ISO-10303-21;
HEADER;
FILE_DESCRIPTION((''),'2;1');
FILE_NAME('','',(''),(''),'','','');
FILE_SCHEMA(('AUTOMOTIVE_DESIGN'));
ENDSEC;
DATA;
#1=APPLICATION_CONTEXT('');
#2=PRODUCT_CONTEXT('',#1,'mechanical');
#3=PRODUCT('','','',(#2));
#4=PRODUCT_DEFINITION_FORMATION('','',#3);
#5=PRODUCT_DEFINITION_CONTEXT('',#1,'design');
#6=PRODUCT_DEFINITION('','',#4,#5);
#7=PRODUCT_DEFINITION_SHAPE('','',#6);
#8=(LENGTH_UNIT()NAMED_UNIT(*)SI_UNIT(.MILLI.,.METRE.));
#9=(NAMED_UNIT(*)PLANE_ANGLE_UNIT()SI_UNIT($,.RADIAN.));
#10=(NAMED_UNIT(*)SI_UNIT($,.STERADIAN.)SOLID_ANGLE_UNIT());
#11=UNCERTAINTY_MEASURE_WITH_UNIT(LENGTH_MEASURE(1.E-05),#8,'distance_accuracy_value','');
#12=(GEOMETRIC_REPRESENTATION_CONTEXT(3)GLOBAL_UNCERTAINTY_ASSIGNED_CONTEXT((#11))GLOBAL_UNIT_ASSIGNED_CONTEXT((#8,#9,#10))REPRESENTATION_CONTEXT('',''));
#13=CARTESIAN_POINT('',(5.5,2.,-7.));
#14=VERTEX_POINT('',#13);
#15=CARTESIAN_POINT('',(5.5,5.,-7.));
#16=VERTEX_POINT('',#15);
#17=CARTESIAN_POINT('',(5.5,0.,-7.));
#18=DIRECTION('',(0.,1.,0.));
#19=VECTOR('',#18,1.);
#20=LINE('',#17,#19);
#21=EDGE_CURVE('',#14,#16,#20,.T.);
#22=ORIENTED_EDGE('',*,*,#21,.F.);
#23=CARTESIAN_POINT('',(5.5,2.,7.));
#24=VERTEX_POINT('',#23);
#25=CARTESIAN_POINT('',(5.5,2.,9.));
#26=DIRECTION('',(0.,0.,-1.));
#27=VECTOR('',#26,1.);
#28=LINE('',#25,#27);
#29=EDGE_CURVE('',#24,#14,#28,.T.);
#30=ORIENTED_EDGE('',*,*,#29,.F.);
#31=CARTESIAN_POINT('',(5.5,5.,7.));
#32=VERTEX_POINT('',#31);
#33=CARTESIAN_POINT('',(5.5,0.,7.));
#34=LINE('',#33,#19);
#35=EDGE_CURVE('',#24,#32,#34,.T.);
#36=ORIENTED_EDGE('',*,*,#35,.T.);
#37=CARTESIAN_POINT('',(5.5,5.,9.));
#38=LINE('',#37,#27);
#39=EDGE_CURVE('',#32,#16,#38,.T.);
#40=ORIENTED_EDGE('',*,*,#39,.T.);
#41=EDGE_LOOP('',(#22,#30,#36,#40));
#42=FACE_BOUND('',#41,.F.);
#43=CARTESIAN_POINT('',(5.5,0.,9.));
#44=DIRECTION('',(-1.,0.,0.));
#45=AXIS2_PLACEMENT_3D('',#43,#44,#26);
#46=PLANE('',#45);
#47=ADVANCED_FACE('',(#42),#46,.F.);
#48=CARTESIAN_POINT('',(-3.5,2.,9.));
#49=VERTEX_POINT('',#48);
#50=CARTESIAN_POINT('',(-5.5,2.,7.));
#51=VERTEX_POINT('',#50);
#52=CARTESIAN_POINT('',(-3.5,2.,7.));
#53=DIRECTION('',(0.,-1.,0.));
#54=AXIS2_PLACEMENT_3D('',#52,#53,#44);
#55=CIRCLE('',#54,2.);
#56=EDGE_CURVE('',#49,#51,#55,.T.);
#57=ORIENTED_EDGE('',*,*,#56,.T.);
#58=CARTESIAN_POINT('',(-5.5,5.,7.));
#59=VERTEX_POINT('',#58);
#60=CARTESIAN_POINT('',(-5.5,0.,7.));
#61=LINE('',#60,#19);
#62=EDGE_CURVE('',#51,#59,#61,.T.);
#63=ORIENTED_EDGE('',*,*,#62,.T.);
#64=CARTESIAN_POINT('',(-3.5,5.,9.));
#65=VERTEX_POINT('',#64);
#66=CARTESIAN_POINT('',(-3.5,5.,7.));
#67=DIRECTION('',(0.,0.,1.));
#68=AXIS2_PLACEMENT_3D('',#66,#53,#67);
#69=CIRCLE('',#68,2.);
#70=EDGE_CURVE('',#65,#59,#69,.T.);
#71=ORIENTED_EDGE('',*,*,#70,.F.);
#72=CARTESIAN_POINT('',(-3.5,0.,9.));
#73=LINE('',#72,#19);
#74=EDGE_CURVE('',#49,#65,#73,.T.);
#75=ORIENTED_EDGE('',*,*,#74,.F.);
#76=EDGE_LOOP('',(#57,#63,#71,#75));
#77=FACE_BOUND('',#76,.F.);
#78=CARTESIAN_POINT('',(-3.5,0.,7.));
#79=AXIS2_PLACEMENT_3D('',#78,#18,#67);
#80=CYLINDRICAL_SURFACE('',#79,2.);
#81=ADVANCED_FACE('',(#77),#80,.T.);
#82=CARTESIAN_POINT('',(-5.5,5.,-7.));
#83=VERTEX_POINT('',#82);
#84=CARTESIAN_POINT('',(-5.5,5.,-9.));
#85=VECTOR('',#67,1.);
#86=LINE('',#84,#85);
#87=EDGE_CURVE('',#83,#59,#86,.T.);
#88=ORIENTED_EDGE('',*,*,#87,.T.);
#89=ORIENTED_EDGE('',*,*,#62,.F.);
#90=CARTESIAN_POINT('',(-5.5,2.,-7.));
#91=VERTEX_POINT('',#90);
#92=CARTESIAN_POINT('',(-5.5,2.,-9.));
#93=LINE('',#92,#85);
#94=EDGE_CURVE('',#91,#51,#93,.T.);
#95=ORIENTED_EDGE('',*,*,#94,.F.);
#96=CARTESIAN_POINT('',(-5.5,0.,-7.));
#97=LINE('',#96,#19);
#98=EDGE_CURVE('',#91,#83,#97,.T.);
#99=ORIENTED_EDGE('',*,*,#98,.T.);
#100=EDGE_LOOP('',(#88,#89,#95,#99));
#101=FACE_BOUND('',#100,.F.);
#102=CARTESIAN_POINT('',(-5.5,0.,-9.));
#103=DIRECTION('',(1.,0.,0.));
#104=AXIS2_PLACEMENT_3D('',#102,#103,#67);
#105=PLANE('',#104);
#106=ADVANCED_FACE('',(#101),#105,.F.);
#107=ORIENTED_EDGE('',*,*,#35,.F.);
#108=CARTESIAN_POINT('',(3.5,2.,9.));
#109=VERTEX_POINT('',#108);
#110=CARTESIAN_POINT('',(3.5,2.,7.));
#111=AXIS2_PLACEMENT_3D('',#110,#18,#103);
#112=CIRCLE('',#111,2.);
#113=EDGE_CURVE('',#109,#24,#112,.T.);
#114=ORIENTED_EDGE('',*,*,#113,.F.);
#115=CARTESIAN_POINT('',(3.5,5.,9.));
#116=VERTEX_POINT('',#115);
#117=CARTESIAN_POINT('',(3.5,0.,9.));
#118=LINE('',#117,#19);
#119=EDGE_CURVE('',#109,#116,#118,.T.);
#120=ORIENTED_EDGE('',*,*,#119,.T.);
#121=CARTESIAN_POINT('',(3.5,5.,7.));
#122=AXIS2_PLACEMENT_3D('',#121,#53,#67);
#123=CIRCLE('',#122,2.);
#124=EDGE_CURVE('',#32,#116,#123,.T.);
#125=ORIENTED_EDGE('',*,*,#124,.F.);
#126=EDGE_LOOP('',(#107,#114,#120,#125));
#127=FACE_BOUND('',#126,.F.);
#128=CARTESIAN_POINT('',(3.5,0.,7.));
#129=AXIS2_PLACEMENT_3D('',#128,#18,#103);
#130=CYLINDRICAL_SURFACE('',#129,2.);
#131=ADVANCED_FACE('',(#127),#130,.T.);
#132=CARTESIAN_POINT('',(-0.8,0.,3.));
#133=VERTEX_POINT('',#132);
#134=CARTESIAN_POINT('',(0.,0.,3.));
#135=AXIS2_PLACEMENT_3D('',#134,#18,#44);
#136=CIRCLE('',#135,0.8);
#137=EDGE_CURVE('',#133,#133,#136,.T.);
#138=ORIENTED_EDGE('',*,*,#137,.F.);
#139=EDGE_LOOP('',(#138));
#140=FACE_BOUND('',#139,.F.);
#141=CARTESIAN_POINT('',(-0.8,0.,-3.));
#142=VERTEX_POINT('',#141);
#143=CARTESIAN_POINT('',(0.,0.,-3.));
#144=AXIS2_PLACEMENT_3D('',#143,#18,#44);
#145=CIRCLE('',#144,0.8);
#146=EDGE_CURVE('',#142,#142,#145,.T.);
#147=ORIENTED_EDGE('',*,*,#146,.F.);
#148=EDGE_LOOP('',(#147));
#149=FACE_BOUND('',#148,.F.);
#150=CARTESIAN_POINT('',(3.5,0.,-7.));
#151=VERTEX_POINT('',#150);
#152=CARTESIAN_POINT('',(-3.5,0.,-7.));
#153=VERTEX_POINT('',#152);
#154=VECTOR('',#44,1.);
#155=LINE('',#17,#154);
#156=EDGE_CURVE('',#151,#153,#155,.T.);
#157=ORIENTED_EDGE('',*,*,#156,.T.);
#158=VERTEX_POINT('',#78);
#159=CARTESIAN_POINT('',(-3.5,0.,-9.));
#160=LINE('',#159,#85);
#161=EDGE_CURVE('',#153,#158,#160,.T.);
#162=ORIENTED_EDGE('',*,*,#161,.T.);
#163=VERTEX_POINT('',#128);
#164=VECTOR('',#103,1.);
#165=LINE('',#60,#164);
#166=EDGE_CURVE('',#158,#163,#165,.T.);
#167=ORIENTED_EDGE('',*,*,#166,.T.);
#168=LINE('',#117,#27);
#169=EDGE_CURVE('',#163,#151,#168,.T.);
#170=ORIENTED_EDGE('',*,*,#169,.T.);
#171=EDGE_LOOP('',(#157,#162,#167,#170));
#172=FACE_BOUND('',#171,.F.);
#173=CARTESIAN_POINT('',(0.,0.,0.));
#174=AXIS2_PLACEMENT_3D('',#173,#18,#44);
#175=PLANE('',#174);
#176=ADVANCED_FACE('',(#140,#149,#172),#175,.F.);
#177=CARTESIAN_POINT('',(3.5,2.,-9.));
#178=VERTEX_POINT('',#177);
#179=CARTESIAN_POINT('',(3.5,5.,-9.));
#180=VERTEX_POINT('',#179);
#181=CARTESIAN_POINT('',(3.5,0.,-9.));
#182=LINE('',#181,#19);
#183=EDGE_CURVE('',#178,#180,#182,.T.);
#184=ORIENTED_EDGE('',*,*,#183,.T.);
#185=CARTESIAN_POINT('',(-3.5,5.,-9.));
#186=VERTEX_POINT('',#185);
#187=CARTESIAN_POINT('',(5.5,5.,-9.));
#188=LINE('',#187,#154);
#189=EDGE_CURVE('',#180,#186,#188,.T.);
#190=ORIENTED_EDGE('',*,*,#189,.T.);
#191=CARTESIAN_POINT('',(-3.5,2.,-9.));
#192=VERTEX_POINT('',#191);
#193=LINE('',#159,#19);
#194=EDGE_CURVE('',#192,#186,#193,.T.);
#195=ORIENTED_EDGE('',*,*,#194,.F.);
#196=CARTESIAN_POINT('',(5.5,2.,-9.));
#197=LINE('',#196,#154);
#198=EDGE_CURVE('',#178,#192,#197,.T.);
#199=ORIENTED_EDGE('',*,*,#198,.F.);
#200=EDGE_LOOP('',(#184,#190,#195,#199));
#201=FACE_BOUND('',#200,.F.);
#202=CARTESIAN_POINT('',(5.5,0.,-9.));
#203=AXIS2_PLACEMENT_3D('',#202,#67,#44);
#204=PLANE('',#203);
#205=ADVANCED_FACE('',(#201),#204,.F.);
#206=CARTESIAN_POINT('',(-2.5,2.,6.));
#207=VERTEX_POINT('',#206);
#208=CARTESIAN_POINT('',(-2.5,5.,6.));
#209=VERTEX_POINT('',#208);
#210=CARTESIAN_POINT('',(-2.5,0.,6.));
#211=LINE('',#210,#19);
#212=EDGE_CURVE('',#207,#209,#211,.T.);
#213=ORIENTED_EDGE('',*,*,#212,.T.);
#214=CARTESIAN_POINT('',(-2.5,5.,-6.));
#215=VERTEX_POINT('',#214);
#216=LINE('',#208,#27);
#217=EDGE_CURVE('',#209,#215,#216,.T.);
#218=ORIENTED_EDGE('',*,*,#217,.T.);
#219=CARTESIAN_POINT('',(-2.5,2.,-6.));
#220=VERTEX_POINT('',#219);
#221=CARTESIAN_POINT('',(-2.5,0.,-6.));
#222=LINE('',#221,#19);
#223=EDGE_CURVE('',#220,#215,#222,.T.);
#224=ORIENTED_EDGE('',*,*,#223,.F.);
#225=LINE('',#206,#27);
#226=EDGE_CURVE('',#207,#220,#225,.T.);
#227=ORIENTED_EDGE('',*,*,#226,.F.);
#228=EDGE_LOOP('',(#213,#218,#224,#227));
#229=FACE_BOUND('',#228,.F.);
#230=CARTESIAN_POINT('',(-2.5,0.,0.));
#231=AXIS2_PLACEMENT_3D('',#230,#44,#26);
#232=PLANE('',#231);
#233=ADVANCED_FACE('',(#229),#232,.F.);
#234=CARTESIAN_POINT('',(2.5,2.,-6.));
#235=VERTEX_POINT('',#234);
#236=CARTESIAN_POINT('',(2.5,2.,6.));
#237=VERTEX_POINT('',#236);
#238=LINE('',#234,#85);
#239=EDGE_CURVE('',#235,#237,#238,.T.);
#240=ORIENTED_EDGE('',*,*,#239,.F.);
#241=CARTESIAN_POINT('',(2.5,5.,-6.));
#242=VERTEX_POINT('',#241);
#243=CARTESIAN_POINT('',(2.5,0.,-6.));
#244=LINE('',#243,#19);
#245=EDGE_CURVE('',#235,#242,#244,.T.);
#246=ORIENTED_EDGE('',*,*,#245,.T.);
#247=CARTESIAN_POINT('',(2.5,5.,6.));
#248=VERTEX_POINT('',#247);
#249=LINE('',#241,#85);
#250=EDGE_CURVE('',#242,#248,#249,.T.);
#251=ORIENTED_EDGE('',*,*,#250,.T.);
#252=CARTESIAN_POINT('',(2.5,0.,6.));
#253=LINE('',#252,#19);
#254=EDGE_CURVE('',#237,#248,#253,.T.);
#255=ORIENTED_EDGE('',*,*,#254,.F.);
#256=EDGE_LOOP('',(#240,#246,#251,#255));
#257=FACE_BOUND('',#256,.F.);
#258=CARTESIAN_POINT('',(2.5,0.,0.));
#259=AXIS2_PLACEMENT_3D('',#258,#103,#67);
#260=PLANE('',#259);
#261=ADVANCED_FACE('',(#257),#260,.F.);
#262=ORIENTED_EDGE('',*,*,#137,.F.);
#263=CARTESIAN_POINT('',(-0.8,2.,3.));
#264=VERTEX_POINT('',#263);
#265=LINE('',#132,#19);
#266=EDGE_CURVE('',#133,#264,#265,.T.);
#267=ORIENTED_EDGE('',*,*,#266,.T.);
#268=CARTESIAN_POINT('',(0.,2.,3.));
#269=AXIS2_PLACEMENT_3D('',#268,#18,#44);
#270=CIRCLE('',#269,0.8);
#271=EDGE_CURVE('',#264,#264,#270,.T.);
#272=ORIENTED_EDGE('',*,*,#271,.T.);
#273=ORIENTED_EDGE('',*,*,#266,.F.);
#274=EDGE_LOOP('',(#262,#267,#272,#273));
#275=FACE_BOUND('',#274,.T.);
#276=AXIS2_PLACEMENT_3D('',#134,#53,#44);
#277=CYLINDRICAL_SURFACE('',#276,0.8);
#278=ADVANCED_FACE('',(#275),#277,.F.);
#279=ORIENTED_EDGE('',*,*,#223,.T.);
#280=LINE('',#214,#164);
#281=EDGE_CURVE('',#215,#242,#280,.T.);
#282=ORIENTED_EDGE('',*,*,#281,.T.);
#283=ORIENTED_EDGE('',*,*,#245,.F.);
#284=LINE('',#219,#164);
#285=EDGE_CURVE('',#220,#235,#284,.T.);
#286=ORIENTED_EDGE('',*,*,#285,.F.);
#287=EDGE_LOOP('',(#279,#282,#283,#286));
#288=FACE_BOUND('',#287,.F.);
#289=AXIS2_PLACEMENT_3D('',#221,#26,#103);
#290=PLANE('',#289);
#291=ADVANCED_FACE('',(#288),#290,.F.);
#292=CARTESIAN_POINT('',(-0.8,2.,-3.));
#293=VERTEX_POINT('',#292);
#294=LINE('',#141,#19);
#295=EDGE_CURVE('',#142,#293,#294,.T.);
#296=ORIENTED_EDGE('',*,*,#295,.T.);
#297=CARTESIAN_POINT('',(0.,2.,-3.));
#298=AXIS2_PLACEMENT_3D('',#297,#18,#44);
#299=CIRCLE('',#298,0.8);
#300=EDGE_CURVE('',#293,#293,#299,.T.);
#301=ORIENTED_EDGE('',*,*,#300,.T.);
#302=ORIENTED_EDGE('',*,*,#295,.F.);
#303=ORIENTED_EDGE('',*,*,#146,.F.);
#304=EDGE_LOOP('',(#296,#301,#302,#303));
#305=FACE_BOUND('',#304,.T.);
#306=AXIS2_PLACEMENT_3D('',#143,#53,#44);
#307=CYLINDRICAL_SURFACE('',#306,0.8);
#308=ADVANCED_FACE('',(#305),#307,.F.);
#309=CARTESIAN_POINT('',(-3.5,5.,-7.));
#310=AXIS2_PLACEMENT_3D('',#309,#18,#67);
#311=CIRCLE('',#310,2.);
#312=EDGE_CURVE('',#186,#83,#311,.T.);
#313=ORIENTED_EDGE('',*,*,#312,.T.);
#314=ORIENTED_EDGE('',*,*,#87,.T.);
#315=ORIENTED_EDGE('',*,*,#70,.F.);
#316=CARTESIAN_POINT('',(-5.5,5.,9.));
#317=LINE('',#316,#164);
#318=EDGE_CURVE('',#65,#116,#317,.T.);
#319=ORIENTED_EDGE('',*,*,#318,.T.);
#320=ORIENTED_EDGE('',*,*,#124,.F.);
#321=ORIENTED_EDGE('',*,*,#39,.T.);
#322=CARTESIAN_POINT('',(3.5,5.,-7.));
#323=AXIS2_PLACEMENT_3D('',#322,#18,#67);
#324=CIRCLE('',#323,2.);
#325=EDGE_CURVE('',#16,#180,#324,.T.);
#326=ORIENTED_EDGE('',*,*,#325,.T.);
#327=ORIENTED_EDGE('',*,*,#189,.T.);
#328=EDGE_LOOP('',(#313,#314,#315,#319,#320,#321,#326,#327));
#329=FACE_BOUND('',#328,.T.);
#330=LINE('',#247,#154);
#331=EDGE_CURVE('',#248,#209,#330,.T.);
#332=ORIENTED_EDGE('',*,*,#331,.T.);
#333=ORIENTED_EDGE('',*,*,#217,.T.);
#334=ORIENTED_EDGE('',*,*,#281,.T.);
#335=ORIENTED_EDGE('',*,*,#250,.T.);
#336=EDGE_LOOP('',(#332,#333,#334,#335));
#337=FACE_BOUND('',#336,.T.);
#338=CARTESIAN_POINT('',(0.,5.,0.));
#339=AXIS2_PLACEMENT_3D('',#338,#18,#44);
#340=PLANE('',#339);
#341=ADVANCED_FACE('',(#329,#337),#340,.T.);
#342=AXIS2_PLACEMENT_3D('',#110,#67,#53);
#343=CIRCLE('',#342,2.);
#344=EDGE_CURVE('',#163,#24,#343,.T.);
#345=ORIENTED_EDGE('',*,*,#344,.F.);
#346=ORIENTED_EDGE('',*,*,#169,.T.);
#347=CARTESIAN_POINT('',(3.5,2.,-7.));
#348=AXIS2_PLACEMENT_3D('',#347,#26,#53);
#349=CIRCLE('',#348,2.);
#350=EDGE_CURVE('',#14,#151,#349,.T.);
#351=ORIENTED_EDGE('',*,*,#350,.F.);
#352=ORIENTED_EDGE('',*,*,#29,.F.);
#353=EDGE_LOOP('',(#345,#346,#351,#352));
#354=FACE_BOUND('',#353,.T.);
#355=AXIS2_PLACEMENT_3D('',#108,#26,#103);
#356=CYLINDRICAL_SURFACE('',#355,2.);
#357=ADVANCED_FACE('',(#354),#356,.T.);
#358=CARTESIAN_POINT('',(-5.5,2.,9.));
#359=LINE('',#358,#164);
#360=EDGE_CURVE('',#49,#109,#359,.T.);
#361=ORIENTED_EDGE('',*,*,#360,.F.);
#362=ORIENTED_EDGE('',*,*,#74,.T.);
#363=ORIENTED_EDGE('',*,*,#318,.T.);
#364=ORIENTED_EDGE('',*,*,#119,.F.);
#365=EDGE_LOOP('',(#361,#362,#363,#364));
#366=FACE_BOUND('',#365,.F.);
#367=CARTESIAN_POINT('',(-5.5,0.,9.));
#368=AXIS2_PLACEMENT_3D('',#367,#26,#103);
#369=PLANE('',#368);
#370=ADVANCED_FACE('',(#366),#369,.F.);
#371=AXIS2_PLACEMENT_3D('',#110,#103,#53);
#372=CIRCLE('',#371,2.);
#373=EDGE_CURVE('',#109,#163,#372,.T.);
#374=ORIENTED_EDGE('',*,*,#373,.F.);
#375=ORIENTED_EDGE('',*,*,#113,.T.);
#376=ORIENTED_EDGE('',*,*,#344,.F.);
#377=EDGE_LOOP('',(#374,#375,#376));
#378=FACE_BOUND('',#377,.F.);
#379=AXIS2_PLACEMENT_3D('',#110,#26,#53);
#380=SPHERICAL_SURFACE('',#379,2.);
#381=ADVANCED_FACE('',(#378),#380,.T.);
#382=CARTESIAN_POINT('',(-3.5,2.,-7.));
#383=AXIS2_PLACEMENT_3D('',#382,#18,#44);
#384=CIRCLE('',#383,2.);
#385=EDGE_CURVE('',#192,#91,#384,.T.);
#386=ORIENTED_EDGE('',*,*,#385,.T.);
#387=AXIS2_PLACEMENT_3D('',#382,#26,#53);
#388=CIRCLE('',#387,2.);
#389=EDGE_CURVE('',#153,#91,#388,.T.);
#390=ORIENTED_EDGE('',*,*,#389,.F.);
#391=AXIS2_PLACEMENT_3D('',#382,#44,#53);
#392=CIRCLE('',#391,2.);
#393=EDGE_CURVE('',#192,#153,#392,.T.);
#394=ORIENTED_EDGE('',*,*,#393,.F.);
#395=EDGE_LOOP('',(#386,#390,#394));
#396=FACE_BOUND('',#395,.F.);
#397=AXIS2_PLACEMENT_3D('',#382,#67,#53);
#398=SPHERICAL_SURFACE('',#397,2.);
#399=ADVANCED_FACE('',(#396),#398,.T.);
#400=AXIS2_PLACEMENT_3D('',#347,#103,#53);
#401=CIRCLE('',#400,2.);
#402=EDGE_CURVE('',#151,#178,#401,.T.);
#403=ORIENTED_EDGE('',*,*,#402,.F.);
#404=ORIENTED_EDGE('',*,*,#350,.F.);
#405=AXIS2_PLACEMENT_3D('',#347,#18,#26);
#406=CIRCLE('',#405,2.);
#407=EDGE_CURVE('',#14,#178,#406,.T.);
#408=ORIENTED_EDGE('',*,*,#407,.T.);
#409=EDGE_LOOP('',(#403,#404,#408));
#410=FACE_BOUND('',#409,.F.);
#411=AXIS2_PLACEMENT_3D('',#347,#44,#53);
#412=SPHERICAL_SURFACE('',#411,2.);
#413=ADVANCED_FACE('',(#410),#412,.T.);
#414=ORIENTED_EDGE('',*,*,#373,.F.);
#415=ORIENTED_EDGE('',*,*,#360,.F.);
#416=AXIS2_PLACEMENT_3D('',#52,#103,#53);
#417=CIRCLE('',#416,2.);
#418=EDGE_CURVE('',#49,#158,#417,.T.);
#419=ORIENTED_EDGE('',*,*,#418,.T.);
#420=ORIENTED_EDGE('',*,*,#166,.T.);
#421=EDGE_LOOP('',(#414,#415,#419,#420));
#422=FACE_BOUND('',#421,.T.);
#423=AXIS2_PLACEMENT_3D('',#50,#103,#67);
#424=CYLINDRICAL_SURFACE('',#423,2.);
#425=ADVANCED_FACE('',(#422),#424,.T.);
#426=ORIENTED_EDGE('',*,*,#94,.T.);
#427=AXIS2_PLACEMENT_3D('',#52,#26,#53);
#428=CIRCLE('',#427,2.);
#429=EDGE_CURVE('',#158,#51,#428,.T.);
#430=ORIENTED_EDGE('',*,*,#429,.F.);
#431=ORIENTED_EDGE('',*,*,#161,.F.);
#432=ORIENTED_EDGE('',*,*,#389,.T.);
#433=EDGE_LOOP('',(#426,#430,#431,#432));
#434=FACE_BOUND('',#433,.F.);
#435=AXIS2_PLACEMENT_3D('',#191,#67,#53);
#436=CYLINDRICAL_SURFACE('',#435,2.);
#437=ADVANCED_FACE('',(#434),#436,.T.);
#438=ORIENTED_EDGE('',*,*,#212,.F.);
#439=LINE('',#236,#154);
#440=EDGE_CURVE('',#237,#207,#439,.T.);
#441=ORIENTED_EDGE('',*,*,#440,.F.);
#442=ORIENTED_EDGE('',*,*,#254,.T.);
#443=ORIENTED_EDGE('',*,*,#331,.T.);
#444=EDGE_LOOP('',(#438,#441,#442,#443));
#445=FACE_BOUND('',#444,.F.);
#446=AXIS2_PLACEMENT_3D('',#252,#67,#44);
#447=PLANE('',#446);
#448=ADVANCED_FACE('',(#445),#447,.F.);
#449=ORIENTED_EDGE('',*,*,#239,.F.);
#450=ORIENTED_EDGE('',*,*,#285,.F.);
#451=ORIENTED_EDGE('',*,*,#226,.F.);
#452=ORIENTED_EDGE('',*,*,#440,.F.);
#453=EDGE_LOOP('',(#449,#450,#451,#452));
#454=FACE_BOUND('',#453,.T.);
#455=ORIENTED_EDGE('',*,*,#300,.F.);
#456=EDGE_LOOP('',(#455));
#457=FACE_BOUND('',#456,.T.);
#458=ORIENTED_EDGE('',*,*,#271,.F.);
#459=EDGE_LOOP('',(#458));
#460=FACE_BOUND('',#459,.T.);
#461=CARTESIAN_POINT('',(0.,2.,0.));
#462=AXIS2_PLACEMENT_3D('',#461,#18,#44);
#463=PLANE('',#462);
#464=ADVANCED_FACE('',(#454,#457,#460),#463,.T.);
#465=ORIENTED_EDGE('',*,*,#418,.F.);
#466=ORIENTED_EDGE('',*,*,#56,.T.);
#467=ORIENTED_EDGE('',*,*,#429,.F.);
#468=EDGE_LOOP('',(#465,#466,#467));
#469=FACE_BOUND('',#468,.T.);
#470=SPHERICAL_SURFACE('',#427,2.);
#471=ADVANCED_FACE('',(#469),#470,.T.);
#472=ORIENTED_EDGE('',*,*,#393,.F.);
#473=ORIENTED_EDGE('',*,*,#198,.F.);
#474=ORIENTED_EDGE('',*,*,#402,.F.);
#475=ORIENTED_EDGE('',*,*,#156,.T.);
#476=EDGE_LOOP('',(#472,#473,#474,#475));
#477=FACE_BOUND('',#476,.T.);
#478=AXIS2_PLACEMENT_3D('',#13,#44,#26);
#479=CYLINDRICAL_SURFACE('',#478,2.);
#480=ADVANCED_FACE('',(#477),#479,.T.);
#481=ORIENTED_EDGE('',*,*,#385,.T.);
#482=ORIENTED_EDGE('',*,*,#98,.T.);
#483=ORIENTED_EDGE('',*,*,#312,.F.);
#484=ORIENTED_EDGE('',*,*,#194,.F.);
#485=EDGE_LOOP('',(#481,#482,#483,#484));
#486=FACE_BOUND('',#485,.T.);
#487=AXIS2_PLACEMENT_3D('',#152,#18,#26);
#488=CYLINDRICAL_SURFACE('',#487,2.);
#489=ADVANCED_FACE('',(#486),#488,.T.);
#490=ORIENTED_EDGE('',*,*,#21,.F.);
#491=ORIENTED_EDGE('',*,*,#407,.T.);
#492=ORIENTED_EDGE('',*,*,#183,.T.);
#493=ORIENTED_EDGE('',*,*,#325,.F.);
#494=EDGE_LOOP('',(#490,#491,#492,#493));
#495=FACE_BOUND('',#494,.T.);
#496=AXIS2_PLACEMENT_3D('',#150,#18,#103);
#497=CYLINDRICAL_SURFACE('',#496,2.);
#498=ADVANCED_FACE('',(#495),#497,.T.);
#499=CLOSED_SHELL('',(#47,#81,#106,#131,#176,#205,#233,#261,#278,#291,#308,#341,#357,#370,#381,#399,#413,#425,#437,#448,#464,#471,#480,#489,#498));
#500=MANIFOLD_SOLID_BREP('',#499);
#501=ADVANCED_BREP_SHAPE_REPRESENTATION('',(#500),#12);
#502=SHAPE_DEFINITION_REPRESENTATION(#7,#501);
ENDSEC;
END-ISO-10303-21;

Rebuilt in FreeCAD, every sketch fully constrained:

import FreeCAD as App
import Part
import Sketcher


def edges_at(feature, points):
    """Names of the edges that pass closest to the given points."""
    edges = feature.Shape.Edges
    near = lambda p: min(range(len(edges)), key=lambda i: edges[i].distToShape(Part.Vertex(*p))[0])
    return sorted({f"Edge{near(p) + 1}" for p in points})


def add_polygon(sketch, points):
    """Adds a closed chain of lines whose ends are joined by coincident constraints."""
    first, n = sketch.GeometryCount, len(points)
    for a, b in zip(points, points[1:] + points[:1]):
        sketch.addGeometry(Part.LineSegment(App.Vector(*a, 0), App.Vector(*b, 0)), False)
    for i in range(n):
        sketch.addConstraint(Sketcher.Constraint("Coincident", first + i, 2, first + (i + 1) % n, 1))

doc = App.newDocument("Part")
body = doc.addObject("PartDesign::Body", "Body")

sketch1 = body.newObject("Sketcher::SketchObject", "Sketch")
sketch1.AttachmentSupport = (doc.getObject("XZ_Plane"), [""])
sketch1.MapMode = "FlatFace"
add_polygon(sketch1, [(-2.5, 6), (2.5, 6), (2.5, -6), (-2.5, -6)])
sketch1.addGeometry(Part.Circle(App.Vector(0, 3, 0), App.Vector(0, 0, 1), 0.8), False)
sketch1.addGeometry(Part.Circle(App.Vector(0, -3, 0), App.Vector(0, 0, 1), 0.8), False)
sketch1.addConstraint([
    Sketcher.Constraint("Horizontal", 0),
    Sketcher.Constraint("Vertical", 1),
    Sketcher.Constraint("Horizontal", 2),
    Sketcher.Constraint("Vertical", 3),
    Sketcher.Constraint("Equal", 4, 5),
    Sketcher.Constraint("Symmetric", 4, 3, 5, 3, -1, 1),
    Sketcher.Constraint("Symmetric", 0, 2, 2, 2, -1, 1),
    Sketcher.Constraint("PointOnObject", 4, 3, -2),
    Sketcher.Constraint("Diameter", 4, 1.6),
    Sketcher.Constraint("DistanceX", 0, 1, 0, 2, 5.0),
    Sketcher.Constraint("DistanceY", 1, 2, 1, 1, 12.0),
    Sketcher.Constraint("DistanceY", -1, 1, 4, 3, 3.0),
])
pad1 = body.newObject("PartDesign::Pad", "Pad")
pad1.Profile = sketch1
pad1.Length = 2
pad1.Reversed = True

sketch2 = body.newObject("Sketcher::SketchObject", "Sketch001")
sketch2.AttachmentSupport = (doc.getObject("XZ_Plane"), [""])
sketch2.MapMode = "FlatFace"
add_polygon(sketch2, [(6, 9), (6, -9), (-6, -9), (-6, 9)])
add_polygon(sketch2, [(2, -6), (2, 6), (-2, 6), (-2, -6)])
sketch2.addConstraint([
    Sketcher.Constraint("Vertical", 0),
    Sketcher.Constraint("Horizontal", 1),
    Sketcher.Constraint("Vertical", 2),
    Sketcher.Constraint("Horizontal", 3),
    Sketcher.Constraint("Vertical", 4),
    Sketcher.Constraint("Horizontal", 5),
    Sketcher.Constraint("Vertical", 6),
    Sketcher.Constraint("Horizontal", 7),
    Sketcher.Constraint("Symmetric", 0, 2, 2, 2, -1, 1),
    Sketcher.Constraint("Symmetric", 4, 2, 6, 2, -1, 1),
    Sketcher.Constraint("DistanceX", 1, 2, 1, 1, 11.0),
    Sketcher.Constraint("DistanceX", 5, 2, 5, 1, 5.0),
    Sketcher.Constraint("DistanceY", 0, 2, 0, 1, 18.0),
    Sketcher.Constraint("DistanceY", 4, 1, 4, 2, 12.0),
])
pad2 = body.newObject("PartDesign::Pad", "Pad001")
pad2.Profile = sketch2
pad2.Length = 5
pad2.Reversed = True
doc.recompute()

fillet = body.newObject("PartDesign::Fillet", "Fillet")
fillet.Base = (pad2, edges_at(pad2, [
    (-5.5, 0, 0),
    (0, 0, -9),
    (5.5, 0, 0),
    (0, 0, 9),
    (-5.5, 2.5, -9),
    (-5.5, 2.5, 9),
    (5.5, 2.5, 9),
    (5.5, 2.5, -9),
]))
fillet.Radius = 2

doc.recompute()
